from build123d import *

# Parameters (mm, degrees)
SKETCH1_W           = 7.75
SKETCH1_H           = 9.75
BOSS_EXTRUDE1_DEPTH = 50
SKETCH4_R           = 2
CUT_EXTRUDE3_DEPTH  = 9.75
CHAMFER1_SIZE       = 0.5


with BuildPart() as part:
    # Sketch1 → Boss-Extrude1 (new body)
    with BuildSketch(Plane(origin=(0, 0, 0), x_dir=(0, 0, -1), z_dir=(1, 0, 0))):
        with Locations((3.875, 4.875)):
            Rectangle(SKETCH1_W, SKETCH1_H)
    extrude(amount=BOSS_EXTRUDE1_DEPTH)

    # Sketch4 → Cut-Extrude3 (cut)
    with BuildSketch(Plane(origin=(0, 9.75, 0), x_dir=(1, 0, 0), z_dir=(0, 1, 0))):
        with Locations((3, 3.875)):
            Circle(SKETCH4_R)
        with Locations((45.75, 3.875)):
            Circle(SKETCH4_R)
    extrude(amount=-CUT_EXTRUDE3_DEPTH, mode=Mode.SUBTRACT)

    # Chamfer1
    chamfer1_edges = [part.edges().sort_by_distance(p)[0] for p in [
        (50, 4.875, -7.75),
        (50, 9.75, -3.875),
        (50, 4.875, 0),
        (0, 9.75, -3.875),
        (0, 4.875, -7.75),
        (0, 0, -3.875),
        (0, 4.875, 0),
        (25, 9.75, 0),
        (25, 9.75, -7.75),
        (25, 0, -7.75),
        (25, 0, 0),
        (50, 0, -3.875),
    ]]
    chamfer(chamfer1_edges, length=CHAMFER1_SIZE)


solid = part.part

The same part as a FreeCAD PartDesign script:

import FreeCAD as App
import Part
import Sketcher


def edges_at(feature, points):
    """Names of the edges that pass closest to the given points."""
    edges = feature.Shape.Edges
    near = lambda p: min(range(len(edges)), key=lambda i: edges[i].distToShape(Part.Vertex(*p))[0])
    return sorted({f"Edge{near(p) + 1}" for p in points})

doc = App.newDocument("Part")
params = doc.addObject("Spreadsheet::Sheet", "Params")
for row, (alias, value) in enumerate([
    ("sketch1_width", "9.75 mm"),
    ("sketch1_height", "7.75 mm"),
    ("pad1_length", "50 mm"),
    ("sketch2_diameter", "4 mm"),
    ("pocket1_length", "9.75 mm"),
    ("chamfer_size", "0.5 mm"),
], start=1):
    params.set(f"A{row}", alias)
    params.set(f"B{row}", "=" + value)
    params.setAlias(f"B{row}", alias)

body = doc.addObject("PartDesign::Body", "Body")

# Sketch on YZ plane
sketch1 = doc.addObject("Sketcher::SketchObject", "Sketch")
body.addObject(sketch1)
sketch1.AttachmentSupport = (doc.YZ_Plane, [""])
sketch1.MapMode = "FlatFace"
sketch1.addGeometry(Part.LineSegment(App.Vector(9.75, 0, 0), App.Vector(0, 0, 0)), False)
sketch1.addGeometry(Part.LineSegment(App.Vector(0, 0, 0), App.Vector(0, -7.75, 0)), False)
sketch1.addGeometry(Part.LineSegment(App.Vector(0, -7.75, 0), App.Vector(9.75, -7.75, 0)), False)
sketch1.addGeometry(Part.LineSegment(App.Vector(9.75, -7.75, 0), App.Vector(9.75, 0, 0)), False)
sketch1.addConstraint(Sketcher.Constraint("Coincident", 0, 2, 1, 1))
sketch1.addConstraint(Sketcher.Constraint("Coincident", 1, 2, 2, 1))
sketch1.addConstraint(Sketcher.Constraint("Coincident", 2, 2, 3, 1))
sketch1.addConstraint(Sketcher.Constraint("Coincident", 3, 2, 0, 1))
sketch1.addConstraint(Sketcher.Constraint("Horizontal", 0))
sketch1.addConstraint(Sketcher.Constraint("Vertical", 1))
sketch1.addConstraint(Sketcher.Constraint("Horizontal", 2))
sketch1.addConstraint(Sketcher.Constraint("Vertical", 3))
sketch1.addConstraint(Sketcher.Constraint("Coincident", 0, 2, -1, 1))
sketch1.addConstraint(Sketcher.Constraint("DistanceX", 0, 2, 0, 1, 9.75))
sketch1.addConstraint(Sketcher.Constraint("DistanceY", 1, 2, 1, 1, 7.75))
sketch1.setExpression("Constraints[9]", "Params.sketch1_width")
sketch1.setExpression("Constraints[10]", "Params.sketch1_height")
pad1 = doc.addObject("PartDesign::Pad", "Pad")
body.addObject(pad1)
pad1.Profile = sketch1
pad1.setExpression("Length", "Params.pad1_length")

# Sketch on XZ plane
sketch2 = doc.addObject("Sketcher::SketchObject", "Sketch001")
body.addObject(sketch2)
sketch2.AttachmentSupport = (doc.XZ_Plane, [""])
sketch2.MapMode = "FlatFace"
sketch2.AttachmentOffset = App.Placement(App.Vector(0, 0, -9.75), App.Rotation())
sketch2.addGeometry(Part.Circle(App.Vector(3, -3.875, 0), App.Vector(0, 0, 1), 2), False)
sketch2.addGeometry(Part.Circle(App.Vector(45.75, -3.875, 0), App.Vector(0, 0, 1), 2), False)
sketch2.addConstraint(Sketcher.Constraint("Equal", 0, 1))
sketch2.addConstraint(Sketcher.Constraint("Horizontal", 0, 3, 1, 3))
sketch2.addConstraint(Sketcher.Constraint("Diameter", 0, 4.0))
sketch2.addConstraint(Sketcher.Constraint("DistanceX", -1, 1, 0, 3, 3.0))
sketch2.addConstraint(Sketcher.Constraint("DistanceX", -1, 1, 1, 3, 45.75))
sketch2.addConstraint(Sketcher.Constraint("DistanceY", 0, 3, -1, 1, 3.875))
sketch2.setExpression("Constraints[2]", "Params.sketch2_diameter")
pocket1 = doc.addObject("PartDesign::Pocket", "Pocket")
body.addObject(pocket1)
pocket1.Profile = sketch2
pocket1.setExpression("Length", "Params.pocket1_length")
pocket1.Reversed = True
doc.recompute()

chamfer = doc.addObject("PartDesign::Chamfer", "Chamfer")
body.addObject(chamfer)
chamfer.Base = (pocket1, edges_at(pocket1, [
    (50, 4.875, -7.75),
    (50, 9.75, -3.875),
    (50, 4.875, 0),
    (0, 9.75, -3.875),
    (0, 4.875, -7.75),
    (0, 0, -3.875),
    (0, 4.875, 0),
    (25, 9.75, 0),
    (25, 9.75, -7.75),
    (25, 0, -7.75),
    (25, 0, 0),
    (50, 0, -3.875),
]))
chamfer.setExpression("Size", "Params.chamfer_size")

doc.recompute()
